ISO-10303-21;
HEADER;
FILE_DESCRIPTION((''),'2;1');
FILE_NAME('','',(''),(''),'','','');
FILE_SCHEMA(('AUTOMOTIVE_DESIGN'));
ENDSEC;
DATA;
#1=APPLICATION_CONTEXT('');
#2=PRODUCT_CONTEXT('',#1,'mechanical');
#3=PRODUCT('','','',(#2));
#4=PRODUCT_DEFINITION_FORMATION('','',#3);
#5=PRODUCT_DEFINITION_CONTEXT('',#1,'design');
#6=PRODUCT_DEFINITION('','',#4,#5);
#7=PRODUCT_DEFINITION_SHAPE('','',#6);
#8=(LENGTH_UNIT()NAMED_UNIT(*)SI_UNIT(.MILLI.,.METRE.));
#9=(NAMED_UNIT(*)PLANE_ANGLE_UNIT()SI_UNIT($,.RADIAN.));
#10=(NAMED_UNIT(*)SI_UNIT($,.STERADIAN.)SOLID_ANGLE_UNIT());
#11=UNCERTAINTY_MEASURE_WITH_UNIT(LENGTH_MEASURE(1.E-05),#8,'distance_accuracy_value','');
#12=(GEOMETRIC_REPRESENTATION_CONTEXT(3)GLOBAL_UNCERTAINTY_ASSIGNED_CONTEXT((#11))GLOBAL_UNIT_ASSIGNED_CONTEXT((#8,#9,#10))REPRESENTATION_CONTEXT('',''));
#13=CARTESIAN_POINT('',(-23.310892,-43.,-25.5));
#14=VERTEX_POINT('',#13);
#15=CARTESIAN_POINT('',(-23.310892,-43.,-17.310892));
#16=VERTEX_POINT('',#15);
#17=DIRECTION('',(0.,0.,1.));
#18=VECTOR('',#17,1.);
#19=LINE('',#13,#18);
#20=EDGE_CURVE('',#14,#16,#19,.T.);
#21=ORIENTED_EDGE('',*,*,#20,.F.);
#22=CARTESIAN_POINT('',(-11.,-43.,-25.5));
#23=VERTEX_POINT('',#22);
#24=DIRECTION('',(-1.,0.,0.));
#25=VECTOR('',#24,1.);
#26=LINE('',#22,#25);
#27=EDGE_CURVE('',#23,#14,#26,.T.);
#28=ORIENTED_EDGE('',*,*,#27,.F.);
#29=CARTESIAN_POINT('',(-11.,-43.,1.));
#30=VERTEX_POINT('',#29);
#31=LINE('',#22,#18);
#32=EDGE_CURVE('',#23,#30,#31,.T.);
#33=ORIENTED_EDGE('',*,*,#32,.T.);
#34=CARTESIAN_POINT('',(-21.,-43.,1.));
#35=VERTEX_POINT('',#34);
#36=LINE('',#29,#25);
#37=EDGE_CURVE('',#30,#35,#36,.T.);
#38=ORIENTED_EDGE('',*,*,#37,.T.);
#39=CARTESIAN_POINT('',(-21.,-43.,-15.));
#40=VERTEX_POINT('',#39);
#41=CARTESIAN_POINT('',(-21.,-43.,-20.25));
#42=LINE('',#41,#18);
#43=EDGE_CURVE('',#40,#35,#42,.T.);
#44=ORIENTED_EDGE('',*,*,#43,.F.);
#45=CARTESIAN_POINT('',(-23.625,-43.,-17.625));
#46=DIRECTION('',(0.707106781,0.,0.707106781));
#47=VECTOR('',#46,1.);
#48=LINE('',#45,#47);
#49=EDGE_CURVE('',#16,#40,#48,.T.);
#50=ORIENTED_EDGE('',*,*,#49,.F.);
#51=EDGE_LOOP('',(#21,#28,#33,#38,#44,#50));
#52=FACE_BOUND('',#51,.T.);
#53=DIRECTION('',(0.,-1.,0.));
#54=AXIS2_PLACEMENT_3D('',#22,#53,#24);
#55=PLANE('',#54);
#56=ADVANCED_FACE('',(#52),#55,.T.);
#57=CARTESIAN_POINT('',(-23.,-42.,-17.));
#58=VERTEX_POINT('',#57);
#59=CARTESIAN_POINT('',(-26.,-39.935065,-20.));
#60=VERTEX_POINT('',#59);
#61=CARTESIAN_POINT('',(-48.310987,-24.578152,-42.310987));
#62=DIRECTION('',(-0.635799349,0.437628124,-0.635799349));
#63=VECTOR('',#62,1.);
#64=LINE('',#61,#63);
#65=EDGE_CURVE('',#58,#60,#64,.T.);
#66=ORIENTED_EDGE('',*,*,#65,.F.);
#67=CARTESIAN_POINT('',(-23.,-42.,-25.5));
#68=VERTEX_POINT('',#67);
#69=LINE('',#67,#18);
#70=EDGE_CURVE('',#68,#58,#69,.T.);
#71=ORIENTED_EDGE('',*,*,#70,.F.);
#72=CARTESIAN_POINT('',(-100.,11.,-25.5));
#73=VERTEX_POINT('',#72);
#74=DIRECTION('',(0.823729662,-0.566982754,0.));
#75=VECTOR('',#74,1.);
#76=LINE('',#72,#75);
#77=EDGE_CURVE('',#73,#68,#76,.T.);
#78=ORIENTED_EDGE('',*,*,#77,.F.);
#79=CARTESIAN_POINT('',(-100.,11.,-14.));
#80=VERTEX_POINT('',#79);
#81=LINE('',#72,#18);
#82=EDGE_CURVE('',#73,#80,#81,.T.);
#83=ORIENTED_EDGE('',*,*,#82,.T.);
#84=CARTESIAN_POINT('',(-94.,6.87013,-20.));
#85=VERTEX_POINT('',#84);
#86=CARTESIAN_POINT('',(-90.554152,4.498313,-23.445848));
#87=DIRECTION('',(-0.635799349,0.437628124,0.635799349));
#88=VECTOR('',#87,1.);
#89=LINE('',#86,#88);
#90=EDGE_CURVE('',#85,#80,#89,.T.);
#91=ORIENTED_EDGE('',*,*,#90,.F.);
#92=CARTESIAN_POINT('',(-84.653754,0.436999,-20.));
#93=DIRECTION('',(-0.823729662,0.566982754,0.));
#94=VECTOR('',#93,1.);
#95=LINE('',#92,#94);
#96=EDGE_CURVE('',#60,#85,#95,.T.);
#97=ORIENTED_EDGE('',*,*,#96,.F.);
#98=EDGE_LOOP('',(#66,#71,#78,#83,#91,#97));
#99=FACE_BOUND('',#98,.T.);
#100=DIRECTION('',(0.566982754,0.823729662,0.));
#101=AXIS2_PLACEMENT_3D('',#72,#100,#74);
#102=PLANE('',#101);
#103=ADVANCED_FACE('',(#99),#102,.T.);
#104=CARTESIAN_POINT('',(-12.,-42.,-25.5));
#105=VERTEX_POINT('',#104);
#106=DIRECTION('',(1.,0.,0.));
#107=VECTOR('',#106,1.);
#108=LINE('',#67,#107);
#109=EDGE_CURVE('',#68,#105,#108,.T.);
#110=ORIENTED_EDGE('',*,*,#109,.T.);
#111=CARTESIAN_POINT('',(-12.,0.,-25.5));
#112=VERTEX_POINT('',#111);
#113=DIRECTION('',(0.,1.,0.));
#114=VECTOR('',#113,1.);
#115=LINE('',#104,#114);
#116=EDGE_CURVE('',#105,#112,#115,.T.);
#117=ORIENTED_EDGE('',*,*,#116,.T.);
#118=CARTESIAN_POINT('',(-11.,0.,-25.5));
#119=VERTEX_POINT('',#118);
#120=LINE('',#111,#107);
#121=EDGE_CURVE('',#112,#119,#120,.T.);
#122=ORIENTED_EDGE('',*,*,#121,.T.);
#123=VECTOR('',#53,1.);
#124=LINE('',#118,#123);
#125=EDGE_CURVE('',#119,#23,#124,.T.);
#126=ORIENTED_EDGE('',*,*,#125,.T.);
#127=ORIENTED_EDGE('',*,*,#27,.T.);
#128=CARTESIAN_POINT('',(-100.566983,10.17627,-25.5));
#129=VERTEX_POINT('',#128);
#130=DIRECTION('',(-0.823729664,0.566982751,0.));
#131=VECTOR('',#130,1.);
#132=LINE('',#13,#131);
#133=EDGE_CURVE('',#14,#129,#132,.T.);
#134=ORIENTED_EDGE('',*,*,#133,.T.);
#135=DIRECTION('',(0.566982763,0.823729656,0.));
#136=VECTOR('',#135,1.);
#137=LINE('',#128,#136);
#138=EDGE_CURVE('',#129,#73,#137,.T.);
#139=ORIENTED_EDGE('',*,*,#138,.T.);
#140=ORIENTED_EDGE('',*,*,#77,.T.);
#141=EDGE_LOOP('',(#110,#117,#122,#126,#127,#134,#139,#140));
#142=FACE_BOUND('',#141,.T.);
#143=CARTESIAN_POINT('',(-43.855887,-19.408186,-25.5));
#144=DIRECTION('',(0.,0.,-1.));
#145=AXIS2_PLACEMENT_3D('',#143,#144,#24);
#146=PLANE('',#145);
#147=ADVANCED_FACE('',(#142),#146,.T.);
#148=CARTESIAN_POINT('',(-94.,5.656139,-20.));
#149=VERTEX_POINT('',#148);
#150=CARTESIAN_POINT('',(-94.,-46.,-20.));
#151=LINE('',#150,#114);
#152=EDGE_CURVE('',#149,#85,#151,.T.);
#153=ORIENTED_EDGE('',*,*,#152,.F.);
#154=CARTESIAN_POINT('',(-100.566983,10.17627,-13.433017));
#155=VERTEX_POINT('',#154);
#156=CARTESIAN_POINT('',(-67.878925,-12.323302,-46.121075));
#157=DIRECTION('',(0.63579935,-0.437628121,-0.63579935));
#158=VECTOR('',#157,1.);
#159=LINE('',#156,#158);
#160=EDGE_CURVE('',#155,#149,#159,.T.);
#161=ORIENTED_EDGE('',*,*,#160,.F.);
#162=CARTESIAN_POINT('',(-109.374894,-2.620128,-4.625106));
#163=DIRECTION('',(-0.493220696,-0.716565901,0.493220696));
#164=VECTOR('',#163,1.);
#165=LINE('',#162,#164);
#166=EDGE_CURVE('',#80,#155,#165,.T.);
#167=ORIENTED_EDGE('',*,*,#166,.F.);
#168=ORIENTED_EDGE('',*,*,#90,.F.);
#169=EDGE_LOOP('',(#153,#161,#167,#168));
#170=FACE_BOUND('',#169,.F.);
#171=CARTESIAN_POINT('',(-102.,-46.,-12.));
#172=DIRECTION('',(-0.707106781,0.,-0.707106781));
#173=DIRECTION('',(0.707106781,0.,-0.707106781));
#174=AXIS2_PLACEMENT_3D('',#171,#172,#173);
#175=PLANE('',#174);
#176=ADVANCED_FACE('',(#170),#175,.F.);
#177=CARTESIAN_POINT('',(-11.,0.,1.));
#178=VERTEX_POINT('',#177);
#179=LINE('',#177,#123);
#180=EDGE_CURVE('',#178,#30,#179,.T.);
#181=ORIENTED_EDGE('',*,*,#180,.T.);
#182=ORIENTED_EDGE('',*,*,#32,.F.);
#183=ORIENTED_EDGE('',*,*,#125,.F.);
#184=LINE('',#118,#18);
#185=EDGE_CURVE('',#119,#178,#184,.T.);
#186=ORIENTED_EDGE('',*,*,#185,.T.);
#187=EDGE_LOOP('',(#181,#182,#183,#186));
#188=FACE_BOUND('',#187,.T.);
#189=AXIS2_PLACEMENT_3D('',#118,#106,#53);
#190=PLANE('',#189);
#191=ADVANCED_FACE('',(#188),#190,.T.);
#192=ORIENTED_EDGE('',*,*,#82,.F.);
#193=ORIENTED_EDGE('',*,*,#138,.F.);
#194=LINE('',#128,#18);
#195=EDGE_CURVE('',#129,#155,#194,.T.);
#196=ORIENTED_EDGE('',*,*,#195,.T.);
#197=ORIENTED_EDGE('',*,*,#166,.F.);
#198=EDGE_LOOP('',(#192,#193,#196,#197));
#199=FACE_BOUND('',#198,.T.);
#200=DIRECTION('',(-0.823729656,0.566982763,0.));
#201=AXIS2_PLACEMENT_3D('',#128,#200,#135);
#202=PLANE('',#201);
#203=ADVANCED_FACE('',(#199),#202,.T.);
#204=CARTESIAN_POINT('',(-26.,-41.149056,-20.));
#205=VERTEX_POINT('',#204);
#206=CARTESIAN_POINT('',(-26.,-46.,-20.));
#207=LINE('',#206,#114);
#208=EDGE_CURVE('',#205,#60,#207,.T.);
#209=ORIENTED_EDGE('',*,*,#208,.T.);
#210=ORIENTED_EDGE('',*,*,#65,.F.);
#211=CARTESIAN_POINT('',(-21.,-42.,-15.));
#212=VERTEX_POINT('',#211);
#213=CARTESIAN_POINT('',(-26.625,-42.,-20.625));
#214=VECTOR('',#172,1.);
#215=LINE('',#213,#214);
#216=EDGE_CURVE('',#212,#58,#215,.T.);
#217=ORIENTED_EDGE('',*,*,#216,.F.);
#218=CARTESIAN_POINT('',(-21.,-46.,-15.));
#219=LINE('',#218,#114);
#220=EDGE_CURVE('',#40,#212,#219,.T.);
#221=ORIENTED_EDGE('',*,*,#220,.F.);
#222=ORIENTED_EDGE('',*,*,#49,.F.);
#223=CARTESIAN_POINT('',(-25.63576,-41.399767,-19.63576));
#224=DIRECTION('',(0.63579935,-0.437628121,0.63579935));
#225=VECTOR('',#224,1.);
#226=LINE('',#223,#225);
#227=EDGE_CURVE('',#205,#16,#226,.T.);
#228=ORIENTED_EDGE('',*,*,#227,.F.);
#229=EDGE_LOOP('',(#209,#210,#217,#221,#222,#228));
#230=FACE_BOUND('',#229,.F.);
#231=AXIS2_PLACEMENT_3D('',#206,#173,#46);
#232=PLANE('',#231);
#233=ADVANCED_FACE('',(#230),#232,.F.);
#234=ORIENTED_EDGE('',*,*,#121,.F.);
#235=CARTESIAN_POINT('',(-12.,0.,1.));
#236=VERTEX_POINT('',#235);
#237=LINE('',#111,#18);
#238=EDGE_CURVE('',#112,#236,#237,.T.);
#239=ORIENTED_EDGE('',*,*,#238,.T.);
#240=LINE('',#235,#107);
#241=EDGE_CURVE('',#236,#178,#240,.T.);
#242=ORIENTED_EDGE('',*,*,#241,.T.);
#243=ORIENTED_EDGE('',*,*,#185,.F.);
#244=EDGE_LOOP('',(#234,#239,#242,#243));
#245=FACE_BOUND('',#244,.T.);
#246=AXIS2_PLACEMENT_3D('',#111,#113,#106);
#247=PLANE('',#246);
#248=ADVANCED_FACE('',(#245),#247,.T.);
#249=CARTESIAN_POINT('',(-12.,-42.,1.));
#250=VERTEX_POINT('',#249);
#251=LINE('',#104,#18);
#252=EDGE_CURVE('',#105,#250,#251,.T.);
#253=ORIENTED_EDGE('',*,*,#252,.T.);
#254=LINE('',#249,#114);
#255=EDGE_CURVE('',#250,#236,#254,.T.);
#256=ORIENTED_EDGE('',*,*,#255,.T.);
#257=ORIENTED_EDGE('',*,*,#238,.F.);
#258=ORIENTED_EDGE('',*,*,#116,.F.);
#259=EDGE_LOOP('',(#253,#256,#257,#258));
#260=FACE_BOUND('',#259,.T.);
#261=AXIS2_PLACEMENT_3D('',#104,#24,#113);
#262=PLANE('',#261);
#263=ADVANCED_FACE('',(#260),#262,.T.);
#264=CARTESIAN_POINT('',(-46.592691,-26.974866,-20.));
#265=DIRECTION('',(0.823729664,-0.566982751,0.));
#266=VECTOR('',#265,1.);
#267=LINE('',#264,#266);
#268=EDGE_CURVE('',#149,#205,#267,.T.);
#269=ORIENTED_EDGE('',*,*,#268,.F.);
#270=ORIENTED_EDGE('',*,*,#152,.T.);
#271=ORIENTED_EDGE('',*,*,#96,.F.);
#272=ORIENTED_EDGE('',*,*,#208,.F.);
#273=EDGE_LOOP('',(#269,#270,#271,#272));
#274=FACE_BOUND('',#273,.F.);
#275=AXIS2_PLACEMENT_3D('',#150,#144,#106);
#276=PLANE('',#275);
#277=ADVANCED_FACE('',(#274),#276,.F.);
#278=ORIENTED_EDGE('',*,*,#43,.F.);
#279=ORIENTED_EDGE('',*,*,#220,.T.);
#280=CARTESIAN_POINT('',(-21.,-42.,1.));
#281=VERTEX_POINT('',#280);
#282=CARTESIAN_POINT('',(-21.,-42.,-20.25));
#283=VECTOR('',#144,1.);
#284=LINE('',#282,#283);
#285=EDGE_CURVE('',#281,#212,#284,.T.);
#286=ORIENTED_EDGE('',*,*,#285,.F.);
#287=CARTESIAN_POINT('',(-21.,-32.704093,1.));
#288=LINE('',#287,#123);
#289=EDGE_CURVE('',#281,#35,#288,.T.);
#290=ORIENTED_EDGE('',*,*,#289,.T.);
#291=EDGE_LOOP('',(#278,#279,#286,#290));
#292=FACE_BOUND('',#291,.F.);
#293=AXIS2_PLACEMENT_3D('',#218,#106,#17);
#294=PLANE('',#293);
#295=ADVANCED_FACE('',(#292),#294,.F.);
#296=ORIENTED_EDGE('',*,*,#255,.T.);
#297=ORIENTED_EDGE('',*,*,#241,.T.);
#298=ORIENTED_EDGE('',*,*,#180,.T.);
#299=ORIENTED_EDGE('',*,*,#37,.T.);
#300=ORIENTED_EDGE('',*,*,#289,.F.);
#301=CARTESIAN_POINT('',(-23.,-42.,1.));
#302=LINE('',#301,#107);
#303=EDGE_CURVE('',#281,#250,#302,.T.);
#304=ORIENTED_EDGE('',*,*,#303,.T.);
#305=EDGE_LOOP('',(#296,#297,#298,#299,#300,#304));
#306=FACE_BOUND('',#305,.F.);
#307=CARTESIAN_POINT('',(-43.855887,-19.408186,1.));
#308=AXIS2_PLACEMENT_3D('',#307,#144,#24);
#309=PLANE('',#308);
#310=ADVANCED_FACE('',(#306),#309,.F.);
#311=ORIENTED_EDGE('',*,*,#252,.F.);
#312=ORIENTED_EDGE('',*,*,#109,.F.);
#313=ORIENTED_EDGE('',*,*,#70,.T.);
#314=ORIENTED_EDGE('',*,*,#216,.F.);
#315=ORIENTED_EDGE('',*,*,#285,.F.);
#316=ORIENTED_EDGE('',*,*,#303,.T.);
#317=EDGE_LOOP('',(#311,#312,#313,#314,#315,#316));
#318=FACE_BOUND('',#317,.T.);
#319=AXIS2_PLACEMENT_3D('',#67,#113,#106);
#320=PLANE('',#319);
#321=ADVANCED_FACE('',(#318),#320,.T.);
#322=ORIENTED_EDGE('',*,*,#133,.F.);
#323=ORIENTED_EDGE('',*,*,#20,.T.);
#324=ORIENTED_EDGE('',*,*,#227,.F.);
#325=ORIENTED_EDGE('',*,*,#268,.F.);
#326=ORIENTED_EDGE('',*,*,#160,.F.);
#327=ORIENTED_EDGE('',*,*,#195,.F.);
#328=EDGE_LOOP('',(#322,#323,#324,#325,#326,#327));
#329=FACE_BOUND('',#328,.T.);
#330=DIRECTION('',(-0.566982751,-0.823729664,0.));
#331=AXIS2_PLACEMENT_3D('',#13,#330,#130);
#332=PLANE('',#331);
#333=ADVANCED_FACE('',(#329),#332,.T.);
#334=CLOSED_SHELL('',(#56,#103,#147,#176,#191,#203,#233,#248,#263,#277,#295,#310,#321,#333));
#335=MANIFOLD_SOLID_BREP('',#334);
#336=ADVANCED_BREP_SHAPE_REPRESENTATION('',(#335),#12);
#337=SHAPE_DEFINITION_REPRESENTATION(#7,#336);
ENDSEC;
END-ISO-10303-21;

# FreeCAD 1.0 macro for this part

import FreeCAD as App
import Part
import Sketcher

V = App.Vector
Q = App.Units.Quantity

doc = App.newDocument("Part")
params = doc.addObject("Spreadsheet::Sheet", "Params")
for row, (alias, value) in enumerate([
    ("sketch1_width", "81 mm"),
    ("sketch1_width2", "68 mm"),
    ("sketch1_height", "19.5 mm"),
    ("sketch1_height2", "22.5 mm"),
    ("pad1_length", "60 mm"),
    ("sketch2_width", "1 mm"),
    ("sketch2_width2", "11 mm"),
    ("sketch2_height", "43 mm"),
    ("sketch2_height2", "42 mm"),
    ("sketch2_length", "1 mm"),
    ("pad2_length", "26.5 mm"),
], start=1):
    params.set(f"A{row}", alias)
    params.set(f"B{row}", "=" + value)
    params.setAlias(f"B{row}", alias)

body = doc.addObject("PartDesign::Body", "Body")

sketch1 = body.newObject("Sketcher::SketchObject", "Sketch")
sketch1.AttachmentSupport = (doc.getObject("XZ_Plane"), [""])
sketch1.MapMode = "FlatFace"
sketch1.AttachmentOffset = App.Placement(V(0, 0, 46), App.Rotation())
sketch1.addGeometry([
    Part.LineSegment(V(-21, 7.5, 0), V(-102, 7.5, 0)),
    Part.LineSegment(V(-102, 7.5, 0), V(-102, -12, 0)),
    Part.LineSegment(V(-102, -12, 0), V(-94, -20, 0)),
    Part.LineSegment(V(-94, -20, 0), V(-26, -20, 0)),
    Part.LineSegment(V(-26, -20, 0), V(-21, -15, 0)),
    Part.LineSegment(V(-21, -15, 0), V(-21, 7.5, 0)),
], False)
sketch1.addConstraint([
    Sketcher.Constraint("Coincident", 0, 2, 1, 1),
    Sketcher.Constraint("Coincident", 1, 2, 2, 1),
    Sketcher.Constraint("Coincident", 2, 2, 3, 1),
    Sketcher.Constraint("Coincident", 3, 2, 4, 1),
    Sketcher.Constraint("Coincident", 4, 2, 5, 1),
    Sketcher.Constraint("Coincident", 5, 2, 0, 1),
    Sketcher.Constraint("Horizontal", 0),
    Sketcher.Constraint("Vertical", 1),
    Sketcher.Constraint("Horizontal", 3),
    Sketcher.Constraint("Vertical", 5),
    Sketcher.Constraint("Perpendicular", 2, 4),
    Sketcher.Constraint("DistanceX", 0, 2, 0, 1, 81.0),
    Sketcher.Constraint("DistanceX", 3, 1, 3, 2, 68.0),
    Sketcher.Constraint("Angle", 2, Q("-45 deg")),
    Sketcher.Constraint("DistanceY", 1, 2, 1, 1, 19.5),
    Sketcher.Constraint("DistanceY", 5, 1, 5, 2, 22.5),
    Sketcher.Constraint("DistanceX", 0, 2, -1, 1, 102.0),
    Sketcher.Constraint("DistanceY", 1, 2, -1, 1, 12.0),
])
sketch1.setExpression("Constraints[11]", "Params.sketch1_width")
sketch1.setExpression("Constraints[12]", "Params.sketch1_width2")
sketch1.setExpression("Constraints[14]", "Params.sketch1_height")
sketch1.setExpression("Constraints[15]", "Params.sketch1_height2")
pad1 = body.newObject("PartDesign::Pad", "Pad")
pad1.Profile = sketch1
pad1.setExpression("Length", "Params.pad1_length")
pad1.Reversed = True
body2 = doc.addObject("PartDesign::Body", "Body001")

sketch2 = body2.newObject("Sketcher::SketchObject", "Sketch001")
sketch2.AttachmentSupport = (doc.getObject("XY_Plane001"), [""])
sketch2.MapMode = "FlatFace"
sketch2.AttachmentOffset = App.Placement(V(0, 0, -25.5), App.Rotation())
sketch2.addGeometry([
    Part.LineSegment(V(-11, -43, 0), V(-11, 0, 0)),
    Part.LineSegment(V(-11, 0, 0), V(-12, 0, 0)),
    Part.LineSegment(V(-12, 0, 0), V(-12, -42, 0)),
    Part.LineSegment(V(-12, -42, 0), V(-23, -42, 0)),
    Part.LineSegment(V(-23, -42, 0), V(-100, 11, 0)),
    Part.LineSegment(V(-100, 11, 0), V(-100.566983, 10.17627, 0)),
    Part.LineSegment(V(-100.566983, 10.17627, 0), V(-23.310892, -43, 0)),
    Part.LineSegment(V(-23.310892, -43, 0), V(-11, -43, 0)),
], False)
sketch2.addConstraint([
    Sketcher.Constraint("Coincident", 0, 2, 1, 1),
    Sketcher.Constraint("Coincident", 1, 2, 2, 1),
    Sketcher.Constraint("Coincident", 2, 2, 3, 1),
    Sketcher.Constraint("Coincident", 3, 2, 4, 1),
    Sketcher.Constraint("Coincident", 4, 2, 5, 1),
    Sketcher.Constraint("Coincident", 5, 2, 6, 1),
    Sketcher.Constraint("Coincident", 6, 2, 7, 1),
    Sketcher.Constraint("Coincident", 7, 2, 0, 1),
    Sketcher.Constraint("Vertical", 0),
    Sketcher.Constraint("Horizontal", 1),
    Sketcher.Constraint("Vertical", 2),
    Sketcher.Constraint("Horizontal", 3),
    Sketcher.Constraint("Horizontal", 7),
    Sketcher.Constraint("PointOnObject", 0, 2, -1),
    Sketcher.Constraint("Perpendicular", 4, 5),
    Sketcher.Constraint("Perpendicular", 5, 6),
    Sketcher.Constraint("DistanceX", 1, 2, 1, 1, 1.0),
    Sketcher.Constraint("DistanceX", 3, 2, 3, 1, 11.0),
    Sketcher.Constraint("DistanceY", 0, 1, 0, 2, 43.0),
    Sketcher.Constraint("DistanceY", 2, 2, 2, 1, 42.0),
    Sketcher.Constraint("Distance", 5, 1.0),
    Sketcher.Constraint("DistanceX", 0, 2, -1, 1, 11.0),
    Sketcher.Constraint("DistanceX", 4, 2, -1, 1, 100.0),
    Sketcher.Constraint("DistanceY", -1, 1, 4, 2, 11.0),
])
sketch2.setExpression("Constraints[16]", "Params.sketch2_width")
sketch2.setExpression("Constraints[17]", "Params.sketch2_width2")
sketch2.setExpression("Constraints[18]", "Params.sketch2_height")
sketch2.setExpression("Constraints[19]", "Params.sketch2_height2")
sketch2.setExpression("Constraints[20]", "Params.sketch2_length")
pad2 = body2.newObject("PartDesign::Pad", "Pad001")
pad2.Profile = sketch2
pad2.setExpression("Length", "Params.pad2_length")
doc.recompute()

boolean = body2.newObject("PartDesign::Boolean", "Boolean")
boolean.Type = "Cut"
boolean.addObjects([body])

doc.recompute()
